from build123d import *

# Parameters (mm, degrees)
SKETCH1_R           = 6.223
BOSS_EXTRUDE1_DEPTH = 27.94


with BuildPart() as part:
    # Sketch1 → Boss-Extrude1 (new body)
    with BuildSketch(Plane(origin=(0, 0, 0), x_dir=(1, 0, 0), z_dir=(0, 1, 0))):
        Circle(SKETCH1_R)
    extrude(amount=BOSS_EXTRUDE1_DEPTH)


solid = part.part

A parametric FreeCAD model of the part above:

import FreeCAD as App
import Part
import Sketcher

V = App.Vector
Q = App.Units.Quantity

doc = App.newDocument("Part")
body = doc.addObject("PartDesign::Body", "Body")

sketch1 = body.newObject("Sketcher::SketchObject", "Sketch")
sketch1.AttachmentSupport = (doc.getObject("XZ_Plane"), [""])
sketch1.MapMode = "FlatFace"
sketch1.addGeometry(Part.Circle(V(0, 0, 0), V(0, 0, 1), 6), False)
sketch1.addConstraint([
    Sketcher.Constraint("Coincident", 0, 3, -1, 1),
    Sketcher.Constraint("Diameter", 0, Q("0.49 in")),
])
pad1 = body.newObject("PartDesign::Pad", "Pad")
pad1.Profile = sketch1
pad1.Length = Q("1.1 in")
pad1.Reversed = True

doc.recompute()
